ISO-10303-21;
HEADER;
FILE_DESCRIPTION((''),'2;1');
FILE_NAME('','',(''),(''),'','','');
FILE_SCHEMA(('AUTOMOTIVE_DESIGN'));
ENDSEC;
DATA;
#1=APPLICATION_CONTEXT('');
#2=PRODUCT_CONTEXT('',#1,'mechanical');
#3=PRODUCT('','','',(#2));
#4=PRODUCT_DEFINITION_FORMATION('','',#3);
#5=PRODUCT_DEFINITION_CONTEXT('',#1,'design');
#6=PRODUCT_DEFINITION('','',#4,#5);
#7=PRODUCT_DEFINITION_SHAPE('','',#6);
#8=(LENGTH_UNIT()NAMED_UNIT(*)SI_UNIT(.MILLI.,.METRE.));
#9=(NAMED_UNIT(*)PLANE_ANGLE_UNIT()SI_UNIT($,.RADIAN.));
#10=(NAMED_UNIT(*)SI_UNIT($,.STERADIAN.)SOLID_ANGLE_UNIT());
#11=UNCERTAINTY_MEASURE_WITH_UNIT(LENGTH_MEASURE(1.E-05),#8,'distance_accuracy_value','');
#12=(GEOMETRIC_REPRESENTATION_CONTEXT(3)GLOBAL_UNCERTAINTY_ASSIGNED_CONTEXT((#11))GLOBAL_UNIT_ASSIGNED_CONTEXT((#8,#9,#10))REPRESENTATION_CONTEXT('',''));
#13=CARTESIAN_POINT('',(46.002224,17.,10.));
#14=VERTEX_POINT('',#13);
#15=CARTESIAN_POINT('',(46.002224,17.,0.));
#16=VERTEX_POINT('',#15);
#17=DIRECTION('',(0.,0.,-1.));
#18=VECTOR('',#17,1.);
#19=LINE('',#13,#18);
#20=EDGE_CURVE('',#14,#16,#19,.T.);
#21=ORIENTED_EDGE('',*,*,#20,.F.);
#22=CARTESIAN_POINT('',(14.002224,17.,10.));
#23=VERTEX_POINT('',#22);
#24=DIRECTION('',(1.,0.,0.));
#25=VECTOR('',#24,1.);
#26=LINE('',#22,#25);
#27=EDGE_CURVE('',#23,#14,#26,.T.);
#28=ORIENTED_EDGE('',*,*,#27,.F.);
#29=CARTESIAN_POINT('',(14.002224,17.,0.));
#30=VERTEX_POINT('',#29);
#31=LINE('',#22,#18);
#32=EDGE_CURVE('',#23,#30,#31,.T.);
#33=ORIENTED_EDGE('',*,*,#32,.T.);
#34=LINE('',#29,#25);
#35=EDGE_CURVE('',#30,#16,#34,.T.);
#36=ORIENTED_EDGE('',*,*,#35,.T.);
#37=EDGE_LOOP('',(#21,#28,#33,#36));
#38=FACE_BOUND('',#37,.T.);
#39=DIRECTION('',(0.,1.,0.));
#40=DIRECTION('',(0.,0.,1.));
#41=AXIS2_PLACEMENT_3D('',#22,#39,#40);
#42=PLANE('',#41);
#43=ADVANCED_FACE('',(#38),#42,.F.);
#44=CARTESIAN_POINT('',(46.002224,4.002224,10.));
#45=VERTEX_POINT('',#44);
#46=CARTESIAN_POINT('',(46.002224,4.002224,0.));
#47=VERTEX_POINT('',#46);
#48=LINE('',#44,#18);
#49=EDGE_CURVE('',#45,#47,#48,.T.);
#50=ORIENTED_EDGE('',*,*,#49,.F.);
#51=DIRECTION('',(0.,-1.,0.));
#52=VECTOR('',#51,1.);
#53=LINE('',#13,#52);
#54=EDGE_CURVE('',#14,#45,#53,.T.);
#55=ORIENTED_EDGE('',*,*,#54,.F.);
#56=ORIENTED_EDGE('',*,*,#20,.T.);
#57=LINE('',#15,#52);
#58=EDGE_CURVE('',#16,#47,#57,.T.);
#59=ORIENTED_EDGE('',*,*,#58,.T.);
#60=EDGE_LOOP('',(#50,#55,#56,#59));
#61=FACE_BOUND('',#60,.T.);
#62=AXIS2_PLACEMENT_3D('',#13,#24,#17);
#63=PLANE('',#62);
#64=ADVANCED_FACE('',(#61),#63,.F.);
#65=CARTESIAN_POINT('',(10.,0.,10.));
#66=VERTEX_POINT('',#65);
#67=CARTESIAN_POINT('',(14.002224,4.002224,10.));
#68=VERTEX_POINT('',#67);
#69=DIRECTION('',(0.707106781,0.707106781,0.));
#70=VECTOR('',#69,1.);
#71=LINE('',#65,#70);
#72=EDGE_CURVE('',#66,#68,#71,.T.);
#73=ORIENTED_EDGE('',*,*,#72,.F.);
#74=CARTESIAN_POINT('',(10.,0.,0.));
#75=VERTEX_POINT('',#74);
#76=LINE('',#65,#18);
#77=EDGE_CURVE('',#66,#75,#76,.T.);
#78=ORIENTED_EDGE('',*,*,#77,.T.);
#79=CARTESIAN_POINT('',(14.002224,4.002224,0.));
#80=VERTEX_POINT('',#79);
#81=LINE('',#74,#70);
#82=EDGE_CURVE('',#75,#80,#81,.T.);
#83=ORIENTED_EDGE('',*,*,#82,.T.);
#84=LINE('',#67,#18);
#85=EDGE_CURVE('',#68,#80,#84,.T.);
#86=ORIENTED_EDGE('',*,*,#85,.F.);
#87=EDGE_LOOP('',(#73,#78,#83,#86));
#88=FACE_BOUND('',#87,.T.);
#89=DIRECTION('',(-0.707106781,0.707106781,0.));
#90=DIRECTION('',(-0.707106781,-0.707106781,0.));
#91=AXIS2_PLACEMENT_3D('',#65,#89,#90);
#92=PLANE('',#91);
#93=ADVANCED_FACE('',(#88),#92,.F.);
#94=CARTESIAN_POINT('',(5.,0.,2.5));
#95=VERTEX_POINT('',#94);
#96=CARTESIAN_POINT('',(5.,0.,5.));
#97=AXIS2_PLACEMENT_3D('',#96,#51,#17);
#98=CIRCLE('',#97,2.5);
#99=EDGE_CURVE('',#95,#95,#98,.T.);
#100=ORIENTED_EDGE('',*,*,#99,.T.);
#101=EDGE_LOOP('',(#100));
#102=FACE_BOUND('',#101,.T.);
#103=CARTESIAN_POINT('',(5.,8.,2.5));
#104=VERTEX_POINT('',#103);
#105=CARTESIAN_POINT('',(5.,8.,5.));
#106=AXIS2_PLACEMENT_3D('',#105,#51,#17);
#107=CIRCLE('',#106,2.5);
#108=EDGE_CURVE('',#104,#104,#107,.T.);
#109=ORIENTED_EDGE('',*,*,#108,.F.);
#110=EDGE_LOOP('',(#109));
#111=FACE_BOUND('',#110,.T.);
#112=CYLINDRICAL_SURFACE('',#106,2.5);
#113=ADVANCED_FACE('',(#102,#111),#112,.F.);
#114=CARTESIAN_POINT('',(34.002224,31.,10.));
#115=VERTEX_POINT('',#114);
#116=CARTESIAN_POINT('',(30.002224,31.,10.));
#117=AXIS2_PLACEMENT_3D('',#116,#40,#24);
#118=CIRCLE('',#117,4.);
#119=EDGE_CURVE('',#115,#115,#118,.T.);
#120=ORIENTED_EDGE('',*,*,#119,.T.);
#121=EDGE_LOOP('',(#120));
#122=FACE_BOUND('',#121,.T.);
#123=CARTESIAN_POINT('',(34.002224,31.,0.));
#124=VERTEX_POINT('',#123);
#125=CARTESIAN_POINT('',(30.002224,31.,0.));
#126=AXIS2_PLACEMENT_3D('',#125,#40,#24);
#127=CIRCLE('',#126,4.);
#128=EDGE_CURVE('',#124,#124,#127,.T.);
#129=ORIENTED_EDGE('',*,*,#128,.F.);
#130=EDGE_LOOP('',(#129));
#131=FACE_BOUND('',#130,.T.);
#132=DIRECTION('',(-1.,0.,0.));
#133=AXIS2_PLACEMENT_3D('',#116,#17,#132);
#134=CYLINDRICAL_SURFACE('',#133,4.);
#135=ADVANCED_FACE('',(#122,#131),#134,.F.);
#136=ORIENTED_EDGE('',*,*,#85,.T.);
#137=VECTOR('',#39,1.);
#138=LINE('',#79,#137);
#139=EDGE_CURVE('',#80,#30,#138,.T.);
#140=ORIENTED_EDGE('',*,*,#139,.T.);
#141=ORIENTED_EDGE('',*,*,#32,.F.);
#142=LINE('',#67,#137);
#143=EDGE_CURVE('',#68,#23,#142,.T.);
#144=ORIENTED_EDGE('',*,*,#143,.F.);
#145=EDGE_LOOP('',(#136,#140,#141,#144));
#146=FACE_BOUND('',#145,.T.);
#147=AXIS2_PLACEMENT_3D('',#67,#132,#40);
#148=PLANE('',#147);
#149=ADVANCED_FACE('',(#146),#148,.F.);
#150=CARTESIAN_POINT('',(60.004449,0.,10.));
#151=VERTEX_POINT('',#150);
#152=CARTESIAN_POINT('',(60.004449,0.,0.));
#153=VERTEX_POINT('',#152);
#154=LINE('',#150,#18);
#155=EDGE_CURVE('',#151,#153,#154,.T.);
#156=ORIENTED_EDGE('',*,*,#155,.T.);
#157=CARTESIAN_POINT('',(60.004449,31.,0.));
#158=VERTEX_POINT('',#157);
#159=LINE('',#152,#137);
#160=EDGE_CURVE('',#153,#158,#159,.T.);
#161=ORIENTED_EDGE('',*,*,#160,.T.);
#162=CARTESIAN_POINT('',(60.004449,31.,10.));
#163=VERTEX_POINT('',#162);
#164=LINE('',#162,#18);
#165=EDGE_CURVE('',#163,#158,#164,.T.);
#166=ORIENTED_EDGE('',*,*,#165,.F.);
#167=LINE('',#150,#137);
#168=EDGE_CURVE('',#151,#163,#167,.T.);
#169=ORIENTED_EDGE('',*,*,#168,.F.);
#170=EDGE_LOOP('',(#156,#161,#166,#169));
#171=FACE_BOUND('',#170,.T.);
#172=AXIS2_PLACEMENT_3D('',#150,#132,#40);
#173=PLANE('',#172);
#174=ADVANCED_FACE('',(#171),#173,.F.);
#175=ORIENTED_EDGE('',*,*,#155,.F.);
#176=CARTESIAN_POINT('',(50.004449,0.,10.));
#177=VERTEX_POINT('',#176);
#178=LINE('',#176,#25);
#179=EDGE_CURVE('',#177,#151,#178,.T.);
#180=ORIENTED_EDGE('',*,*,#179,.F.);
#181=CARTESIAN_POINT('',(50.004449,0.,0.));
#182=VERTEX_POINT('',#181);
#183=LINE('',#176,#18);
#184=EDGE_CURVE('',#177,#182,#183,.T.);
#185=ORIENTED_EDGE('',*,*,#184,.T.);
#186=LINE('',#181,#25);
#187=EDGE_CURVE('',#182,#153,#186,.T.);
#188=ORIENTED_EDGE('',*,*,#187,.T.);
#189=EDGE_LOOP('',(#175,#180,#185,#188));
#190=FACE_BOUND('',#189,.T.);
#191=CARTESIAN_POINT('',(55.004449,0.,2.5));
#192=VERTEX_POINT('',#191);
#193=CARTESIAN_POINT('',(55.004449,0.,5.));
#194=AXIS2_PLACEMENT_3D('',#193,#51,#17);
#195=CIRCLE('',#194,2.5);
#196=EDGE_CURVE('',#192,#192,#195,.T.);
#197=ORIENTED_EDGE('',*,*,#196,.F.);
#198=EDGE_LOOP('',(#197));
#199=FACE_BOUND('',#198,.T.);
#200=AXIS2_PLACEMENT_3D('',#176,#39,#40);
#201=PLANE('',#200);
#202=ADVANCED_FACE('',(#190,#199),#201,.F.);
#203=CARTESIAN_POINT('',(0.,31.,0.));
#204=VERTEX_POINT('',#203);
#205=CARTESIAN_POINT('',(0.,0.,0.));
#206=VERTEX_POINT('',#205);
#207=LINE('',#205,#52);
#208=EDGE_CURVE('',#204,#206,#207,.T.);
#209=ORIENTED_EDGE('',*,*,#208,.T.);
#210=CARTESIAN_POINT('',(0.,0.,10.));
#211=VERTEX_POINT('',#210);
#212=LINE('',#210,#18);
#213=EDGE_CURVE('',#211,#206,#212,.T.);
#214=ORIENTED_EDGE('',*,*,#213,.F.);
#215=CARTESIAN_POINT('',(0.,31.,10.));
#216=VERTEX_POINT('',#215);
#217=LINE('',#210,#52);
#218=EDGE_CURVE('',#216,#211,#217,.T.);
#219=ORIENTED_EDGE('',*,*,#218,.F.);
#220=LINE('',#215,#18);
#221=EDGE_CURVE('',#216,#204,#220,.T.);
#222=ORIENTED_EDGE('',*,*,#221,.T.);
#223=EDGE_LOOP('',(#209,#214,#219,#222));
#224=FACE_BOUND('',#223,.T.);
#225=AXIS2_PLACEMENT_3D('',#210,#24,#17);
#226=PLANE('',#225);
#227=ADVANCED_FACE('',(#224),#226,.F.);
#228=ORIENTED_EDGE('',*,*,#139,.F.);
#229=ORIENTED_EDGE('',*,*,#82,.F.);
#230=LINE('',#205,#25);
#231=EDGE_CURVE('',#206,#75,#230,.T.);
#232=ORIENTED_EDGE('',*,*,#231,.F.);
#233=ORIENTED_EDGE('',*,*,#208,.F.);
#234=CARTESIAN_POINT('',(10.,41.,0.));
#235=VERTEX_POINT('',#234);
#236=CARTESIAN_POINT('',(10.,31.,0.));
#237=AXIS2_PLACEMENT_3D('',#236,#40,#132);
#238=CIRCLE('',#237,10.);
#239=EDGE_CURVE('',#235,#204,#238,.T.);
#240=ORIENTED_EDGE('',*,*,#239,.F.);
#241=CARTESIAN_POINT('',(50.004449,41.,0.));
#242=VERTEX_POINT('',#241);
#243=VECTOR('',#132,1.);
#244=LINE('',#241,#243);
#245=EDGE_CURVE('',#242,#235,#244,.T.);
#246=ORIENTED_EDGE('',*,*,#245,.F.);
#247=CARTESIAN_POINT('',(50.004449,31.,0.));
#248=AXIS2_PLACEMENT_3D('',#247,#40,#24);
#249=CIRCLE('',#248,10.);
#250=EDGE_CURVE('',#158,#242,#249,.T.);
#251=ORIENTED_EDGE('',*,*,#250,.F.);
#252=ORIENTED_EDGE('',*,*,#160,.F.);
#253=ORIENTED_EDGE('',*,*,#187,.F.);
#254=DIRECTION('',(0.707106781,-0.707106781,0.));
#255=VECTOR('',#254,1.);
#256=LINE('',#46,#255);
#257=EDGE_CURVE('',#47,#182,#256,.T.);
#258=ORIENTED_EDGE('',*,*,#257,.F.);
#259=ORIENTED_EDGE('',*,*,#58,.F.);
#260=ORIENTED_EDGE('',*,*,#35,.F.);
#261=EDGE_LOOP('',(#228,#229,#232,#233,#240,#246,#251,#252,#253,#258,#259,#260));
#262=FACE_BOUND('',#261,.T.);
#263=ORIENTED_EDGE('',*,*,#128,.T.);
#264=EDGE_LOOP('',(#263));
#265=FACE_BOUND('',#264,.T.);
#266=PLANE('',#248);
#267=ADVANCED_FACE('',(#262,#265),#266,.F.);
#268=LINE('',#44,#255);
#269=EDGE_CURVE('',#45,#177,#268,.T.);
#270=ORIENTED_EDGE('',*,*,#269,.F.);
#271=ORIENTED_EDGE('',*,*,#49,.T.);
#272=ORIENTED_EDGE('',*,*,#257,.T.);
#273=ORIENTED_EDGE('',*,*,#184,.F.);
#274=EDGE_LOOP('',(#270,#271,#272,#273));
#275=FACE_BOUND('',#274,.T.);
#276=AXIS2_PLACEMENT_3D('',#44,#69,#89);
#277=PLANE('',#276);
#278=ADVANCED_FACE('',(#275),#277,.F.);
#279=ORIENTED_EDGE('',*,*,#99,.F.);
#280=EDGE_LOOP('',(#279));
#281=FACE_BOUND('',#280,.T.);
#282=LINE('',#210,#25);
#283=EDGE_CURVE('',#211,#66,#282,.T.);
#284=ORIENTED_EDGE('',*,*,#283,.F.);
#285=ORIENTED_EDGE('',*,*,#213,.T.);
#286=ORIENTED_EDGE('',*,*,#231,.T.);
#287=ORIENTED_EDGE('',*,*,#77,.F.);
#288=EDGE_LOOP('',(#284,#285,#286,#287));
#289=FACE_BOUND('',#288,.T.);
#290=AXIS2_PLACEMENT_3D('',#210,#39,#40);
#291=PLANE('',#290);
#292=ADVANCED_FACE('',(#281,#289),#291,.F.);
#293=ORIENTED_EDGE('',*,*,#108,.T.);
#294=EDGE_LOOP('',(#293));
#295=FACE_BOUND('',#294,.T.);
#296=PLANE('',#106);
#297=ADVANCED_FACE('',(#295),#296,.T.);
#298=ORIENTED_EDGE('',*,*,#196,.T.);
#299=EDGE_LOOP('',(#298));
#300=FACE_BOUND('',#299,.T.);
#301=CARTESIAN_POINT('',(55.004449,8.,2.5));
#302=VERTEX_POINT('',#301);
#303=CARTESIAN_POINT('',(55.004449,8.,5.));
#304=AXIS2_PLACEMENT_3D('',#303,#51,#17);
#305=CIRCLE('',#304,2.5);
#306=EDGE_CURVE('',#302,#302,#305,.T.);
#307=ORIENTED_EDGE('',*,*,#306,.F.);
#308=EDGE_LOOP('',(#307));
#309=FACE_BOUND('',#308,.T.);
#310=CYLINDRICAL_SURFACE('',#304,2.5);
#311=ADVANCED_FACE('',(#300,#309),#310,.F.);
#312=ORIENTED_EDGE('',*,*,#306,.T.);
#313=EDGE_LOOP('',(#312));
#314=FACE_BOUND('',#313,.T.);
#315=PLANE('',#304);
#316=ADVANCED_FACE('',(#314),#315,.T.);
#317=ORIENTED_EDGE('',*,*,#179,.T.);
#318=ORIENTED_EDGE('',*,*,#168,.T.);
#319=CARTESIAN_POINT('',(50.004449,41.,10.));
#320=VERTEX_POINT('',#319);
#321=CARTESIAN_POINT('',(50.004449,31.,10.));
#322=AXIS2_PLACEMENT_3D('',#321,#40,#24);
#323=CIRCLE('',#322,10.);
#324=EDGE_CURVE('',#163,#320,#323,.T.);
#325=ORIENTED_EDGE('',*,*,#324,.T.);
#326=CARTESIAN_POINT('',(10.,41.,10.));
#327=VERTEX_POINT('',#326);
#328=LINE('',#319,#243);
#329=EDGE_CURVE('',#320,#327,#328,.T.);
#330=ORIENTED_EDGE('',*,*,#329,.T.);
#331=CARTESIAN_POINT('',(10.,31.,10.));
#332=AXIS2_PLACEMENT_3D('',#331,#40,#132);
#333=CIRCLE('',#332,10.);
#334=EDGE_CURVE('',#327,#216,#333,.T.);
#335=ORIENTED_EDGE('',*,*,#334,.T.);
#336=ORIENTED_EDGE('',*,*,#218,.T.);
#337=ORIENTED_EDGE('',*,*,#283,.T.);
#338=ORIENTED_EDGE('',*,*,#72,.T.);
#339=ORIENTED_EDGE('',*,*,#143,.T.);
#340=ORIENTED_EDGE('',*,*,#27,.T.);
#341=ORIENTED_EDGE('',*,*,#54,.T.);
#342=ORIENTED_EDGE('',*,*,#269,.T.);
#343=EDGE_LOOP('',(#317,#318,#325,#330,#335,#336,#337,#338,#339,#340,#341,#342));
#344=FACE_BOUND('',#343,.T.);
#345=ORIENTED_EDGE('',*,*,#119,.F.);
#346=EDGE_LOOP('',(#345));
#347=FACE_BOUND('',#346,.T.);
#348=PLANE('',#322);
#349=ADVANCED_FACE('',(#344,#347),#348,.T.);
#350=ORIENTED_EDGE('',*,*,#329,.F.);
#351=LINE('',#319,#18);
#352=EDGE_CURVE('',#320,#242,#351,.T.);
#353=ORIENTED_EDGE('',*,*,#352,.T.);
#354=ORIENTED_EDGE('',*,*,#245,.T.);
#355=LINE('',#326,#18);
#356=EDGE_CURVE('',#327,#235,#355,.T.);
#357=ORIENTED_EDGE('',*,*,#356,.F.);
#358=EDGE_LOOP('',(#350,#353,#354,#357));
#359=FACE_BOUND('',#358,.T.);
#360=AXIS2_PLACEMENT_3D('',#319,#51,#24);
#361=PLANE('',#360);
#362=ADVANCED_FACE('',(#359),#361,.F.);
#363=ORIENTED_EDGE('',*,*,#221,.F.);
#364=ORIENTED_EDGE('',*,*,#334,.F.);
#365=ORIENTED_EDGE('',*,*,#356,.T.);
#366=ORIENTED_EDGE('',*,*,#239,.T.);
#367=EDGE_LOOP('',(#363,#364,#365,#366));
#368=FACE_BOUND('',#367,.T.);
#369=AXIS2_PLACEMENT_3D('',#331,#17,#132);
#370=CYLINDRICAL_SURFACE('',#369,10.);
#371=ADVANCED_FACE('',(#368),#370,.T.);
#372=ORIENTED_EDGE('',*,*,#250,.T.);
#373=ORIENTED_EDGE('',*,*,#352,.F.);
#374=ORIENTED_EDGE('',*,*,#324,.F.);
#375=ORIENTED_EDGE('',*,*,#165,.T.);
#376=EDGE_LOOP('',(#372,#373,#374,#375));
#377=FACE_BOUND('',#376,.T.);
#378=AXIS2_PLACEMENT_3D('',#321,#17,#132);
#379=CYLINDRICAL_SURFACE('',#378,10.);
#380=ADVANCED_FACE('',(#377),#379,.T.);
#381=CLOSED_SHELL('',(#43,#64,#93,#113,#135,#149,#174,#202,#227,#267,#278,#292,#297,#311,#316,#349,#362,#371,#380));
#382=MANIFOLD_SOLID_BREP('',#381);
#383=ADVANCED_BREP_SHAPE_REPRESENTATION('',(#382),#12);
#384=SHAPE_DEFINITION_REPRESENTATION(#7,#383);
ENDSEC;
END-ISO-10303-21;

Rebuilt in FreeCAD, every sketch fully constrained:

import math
import FreeCAD as App
import Part
import Sketcher

V = App.Vector

doc = App.newDocument("Part")
body = doc.addObject("PartDesign::Body", "Body")

sketch1 = body.newObject("Sketcher::SketchObject", "Sketch")
sketch1.AttachmentSupport = (doc.getObject("XY_Plane"), [""])
sketch1.MapMode = "FlatFace"
sketch1.addGeometry([
    Part.LineSegment(V(0, 31, 0), V(0, 0, 0)),
    Part.LineSegment(V(0, 0, 0), V(10, 0, 0)),
    Part.LineSegment(V(10, 0, 0), V(14, 4, 0)),
    Part.LineSegment(V(14, 4, 0), V(14, 17, 0)),
    Part.LineSegment(V(14, 17, 0), V(46, 17, 0)),
    Part.LineSegment(V(46, 17, 0), V(46, 4, 0)),
    Part.LineSegment(V(46, 4, 0), V(50, 0, 0)),
    Part.LineSegment(V(50, 0, 0), V(60, 0, 0)),
    Part.LineSegment(V(60, 0, 0), V(60, 31, 0)),
    Part.ArcOfCircle(Part.Circle(V(50, 31, 0), V(0, 0, 1), 10), math.radians(0), math.radians(90)),
    Part.LineSegment(V(50, 41, 0), V(10, 41, 0)),
    Part.ArcOfCircle(Part.Circle(V(10, 31, 0), V(0, 0, 1), 10), math.radians(90), math.radians(180)),
    Part.Circle(V(30, 31, 0), V(0, 0, 1), 4),
], False)
sketch1.addConstraint([
    Sketcher.Constraint("Coincident", 0, 2, 1, 1),
    Sketcher.Constraint("Coincident", 1, 2, 2, 1),
    Sketcher.Constraint("Coincident", 2, 2, 3, 1),
    Sketcher.Constraint("Coincident", 3, 2, 4, 1),
    Sketcher.Constraint("Coincident", 4, 2, 5, 1),
    Sketcher.Constraint("Coincident", 5, 2, 6, 1),
    Sketcher.Constraint("Coincident", 6, 2, 7, 1),
    Sketcher.Constraint("Coincident", 7, 2, 8, 1),
    Sketcher.Constraint("Tangent", 8, 2, 9, 1),
    Sketcher.Constraint("Tangent", 9, 2, 10, 1),
    Sketcher.Constraint("Tangent", 10, 2, 11, 1),
    Sketcher.Constraint("Tangent", 11, 2, 0, 1),
    Sketcher.Constraint("Vertical", 0),
    Sketcher.Constraint("Horizontal", 1),
    Sketcher.Constraint("Vertical", 3),
    Sketcher.Constraint("Horizontal", 4),
    Sketcher.Constraint("Vertical", 5),
    Sketcher.Constraint("Horizontal", 7),
    Sketcher.Constraint("Vertical", 8),
    Sketcher.Constraint("Horizontal", 10),
    Sketcher.Constraint("Coincident", 0, 2, -1, 1),
    Sketcher.Constraint("Equal", 9, 11),
    Sketcher.Constraint("PointOnObject", 6, 2, -1),
    Sketcher.Constraint("Perpendicular", 2, 6),
    Sketcher.Constraint("Horizontal", 11, 3, 12, 3),
    Sketcher.Constraint("Horizontal", 2, 2, 5, 2),
    Sketcher.Constraint("Vertical", 11, 3, 1, 2),
    Sketcher.Constraint("Vertical", 9, 3, 6, 2),
    Sketcher.Constraint("Equal", 2, 6),
    Sketcher.Constraint("Diameter", 12, 8.0),
    Sketcher.Constraint("Radius", 9, 10.0),
    Sketcher.Constraint("DistanceX", 4, 1, 4, 2, 32.0),
    Sketcher.Constraint("DistanceY", 0, 2, 0, 1, 31.0),
    Sketcher.Constraint("DistanceY", -1, 1, 3, 2, 17.0),
    Sketcher.Constraint("DistanceX", 2, 2, 12, 3, 16.0),
    Sketcher.Constraint("Distance", 2, 5.66),
])
pad1 = body.newObject("PartDesign::Pad", "Pad")
pad1.Profile = sketch1
pad1.Length = 10

sketch2 = body.newObject("Sketcher::SketchObject", "Sketch001")
sketch2.AttachmentSupport = (doc.getObject("XZ_Plane"), [""])
sketch2.MapMode = "FlatFace"
sketch2.addGeometry(Part.Circle(V(55, 5, 0), V(0, 0, 1), 2.5), False)
sketch2.addConstraint([
    Sketcher.Constraint("Diameter", 0, 5.0),
    Sketcher.Constraint("DistanceY", -1, 1, 0, 3, 5.0),
    Sketcher.Constraint("DistanceX", -1, 1, 0, 3, 55.004449),
])
pocket1 = body.newObject("PartDesign::Pocket", "Pocket")
pocket1.Profile = sketch2
pocket1.Length = 8

sketch3 = body.newObject("Sketcher::SketchObject", "Sketch002")
sketch3.AttachmentSupport = (doc.getObject("XZ_Plane"), [""])
sketch3.MapMode = "FlatFace"
sketch3.addGeometry(Part.Circle(V(5, 5, 0), V(0, 0, 1), 2.5), False)
sketch3.addConstraint([
    Sketcher.Constraint("Diameter", 0, 5.0),
    Sketcher.Constraint("DistanceX", -1, 1, 0, 3, 5.0),
    Sketcher.Constraint("DistanceY", -1, 1, 0, 3, 5.0),
])
pocket2 = body.newObject("PartDesign::Pocket", "Pocket001")
pocket2.Profile = sketch3
pocket2.Length = 8

doc.recompute()
